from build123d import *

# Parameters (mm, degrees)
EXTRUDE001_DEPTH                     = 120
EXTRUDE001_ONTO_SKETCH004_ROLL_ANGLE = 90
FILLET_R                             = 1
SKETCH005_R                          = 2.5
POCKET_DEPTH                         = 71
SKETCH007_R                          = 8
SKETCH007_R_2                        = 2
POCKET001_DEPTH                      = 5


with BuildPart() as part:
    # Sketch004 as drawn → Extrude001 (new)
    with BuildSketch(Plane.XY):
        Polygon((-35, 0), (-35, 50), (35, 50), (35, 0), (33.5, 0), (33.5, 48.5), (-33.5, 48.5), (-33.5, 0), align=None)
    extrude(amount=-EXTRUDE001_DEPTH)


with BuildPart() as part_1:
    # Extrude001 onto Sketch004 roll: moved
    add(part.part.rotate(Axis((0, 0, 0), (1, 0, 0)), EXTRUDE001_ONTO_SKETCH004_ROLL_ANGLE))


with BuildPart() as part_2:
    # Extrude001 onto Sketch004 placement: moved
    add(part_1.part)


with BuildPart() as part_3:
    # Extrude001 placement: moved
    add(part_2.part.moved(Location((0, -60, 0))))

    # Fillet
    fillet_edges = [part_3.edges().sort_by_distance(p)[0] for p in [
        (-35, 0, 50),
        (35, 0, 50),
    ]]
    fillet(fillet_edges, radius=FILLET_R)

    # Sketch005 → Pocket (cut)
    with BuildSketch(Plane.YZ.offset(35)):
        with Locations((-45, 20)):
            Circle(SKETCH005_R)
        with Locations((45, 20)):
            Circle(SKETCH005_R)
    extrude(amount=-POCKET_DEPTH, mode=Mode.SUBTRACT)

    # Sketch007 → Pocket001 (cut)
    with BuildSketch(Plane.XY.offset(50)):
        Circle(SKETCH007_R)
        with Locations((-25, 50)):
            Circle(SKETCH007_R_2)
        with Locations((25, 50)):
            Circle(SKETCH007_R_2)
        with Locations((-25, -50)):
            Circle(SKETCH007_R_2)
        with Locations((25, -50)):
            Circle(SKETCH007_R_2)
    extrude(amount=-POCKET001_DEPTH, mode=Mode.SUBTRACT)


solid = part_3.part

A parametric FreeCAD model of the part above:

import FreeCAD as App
import Part
import Sketcher
from FreeCAD import Vector


def edges_at(feature, points):
    """Names of the edges that pass closest to the given points."""
    edges = feature.Shape.Edges
    near = lambda p: min(range(len(edges)), key=lambda i: edges[i].distToShape(Part.Vertex(*p))[0])
    return sorted({f"Edge{near(p) + 1}" for p in points})


def add_polygon(sketch, points):
    """Adds a closed chain of lines whose ends are joined by coincident constraints."""
    first, n = sketch.GeometryCount, len(points)
    for a, b in zip(points, points[1:] + points[:1]):
        sketch.addGeometry(Part.LineSegment(App.Vector(*a, 0), App.Vector(*b, 0)), False)
    for i in range(n):
        sketch.addConstraint(Sketcher.Constraint("Coincident", first + i, 2, first + (i + 1) % n, 1))

doc = App.newDocument("Part")
params = doc.addObject("Spreadsheet::Sheet", "Params")
for row, (alias, value) in enumerate([
    ("sketch1_width", "67 mm"),
    ("sketch1_width2", "70 mm"),
    ("sketch1_height", "50 mm"),
    ("sketch1_height2", "48.5 mm"),
    ("pad1_length", "120 mm"),
    ("fillet_radius", "1 mm"),
    ("sketch2_diameter", "5 mm"),
    ("pocket1_length", "71 mm"),
    ("sketch3_diameter", "16 mm"),
    ("sketch3_diameter2", "4 mm"),
    ("pocket2_length", "5 mm"),
], start=1):
    params.set(f"A{row}", alias)
    params.set(f"B{row}", "=" + value)
    params.setAlias(f"B{row}", alias)

body = doc.addObject("PartDesign::Body", "Body")

# Sketch on XY plane
sketch1 = body.newObject("Sketcher::SketchObject", "Sketch")
sketch1.AttachmentSupport = (doc.getObject("XY_Plane"), [""])
sketch1.MapMode = "FlatFace"
add_polygon(sketch1, [(-35, 50), (-35, 0), (-33.5, 0), (-33.5, 48.5), (33.5, 48.5), (33.5, 0), (35, 0), (35, 50)])  # lines 0-7
sketch1.addConstraint(Sketcher.Constraint("Vertical", 0))
sketch1.addConstraint(Sketcher.Constraint("Horizontal", 1))
sketch1.addConstraint(Sketcher.Constraint("Vertical", 2))
sketch1.addConstraint(Sketcher.Constraint("Horizontal", 3))
sketch1.addConstraint(Sketcher.Constraint("Vertical", 4))
sketch1.addConstraint(Sketcher.Constraint("Horizontal", 5))
sketch1.addConstraint(Sketcher.Constraint("Vertical", 6))
sketch1.addConstraint(Sketcher.Constraint("Horizontal", 7))
sketch1.addConstraint(Sketcher.Constraint("Symmetric", 1, 2, 4, 2, -1, 1))
sketch1.addConstraint(Sketcher.Constraint("Symmetric", 0, 2, 5, 2, -2))
sketch1.addConstraint(Sketcher.Constraint("DistanceX", 3, 1, 3, 2, 67.0))
sketch1.addConstraint(Sketcher.Constraint("DistanceX", 7, 2, 7, 1, 70.0))
sketch1.addConstraint(Sketcher.Constraint("DistanceY", 0, 2, 0, 1, 50.0))
sketch1.addConstraint(Sketcher.Constraint("DistanceY", 2, 1, 2, 2, 48.5))
sketch1.setExpression("Constraints[18]", "Params.sketch1_width")
sketch1.setExpression("Constraints[19]", "Params.sketch1_width2")
sketch1.setExpression("Constraints[20]", "Params.sketch1_height")
sketch1.setExpression("Constraints[21]", "Params.sketch1_height2")
pad1 = body.newObject("PartDesign::Pad", "Pad")
pad1.Profile = sketch1
pad1.setExpression("Length", "Params.pad1_length")
pad1.Reversed = True
body2 = doc.addObject("PartDesign::Body", "Body001")
doc.recompute()

body.Placement = App.Placement(Vector(0, 0, 0), App.Rotation(Vector(1, 0, 0), 90))
boolean = body2.newObject("PartDesign::Boolean", "Boolean")
boolean.Type = "Fuse"
boolean.addObjects([body])
body3 = doc.addObject("PartDesign::Body", "Body002")
doc.recompute()

body2.Placement = App.Placement(Vector(0, -60, 0), App.Rotation(Vector(0, 0, 1), 0))
boolean2 = body3.newObject("PartDesign::Boolean", "Boolean001")
boolean2.Type = "Fuse"
boolean2.addObjects([body2])
doc.recompute()

fillet = body3.newObject("PartDesign::Fillet", "Fillet")
fillet.Base = (boolean2, edges_at(boolean2, [(-35, 0, 50), (35, 0, 50)]))
fillet.setExpression("Radius", "Params.fillet_radius")

# Sketch on YZ plane
sketch2 = body3.newObject("Sketcher::SketchObject", "Sketch001")
sketch2.AttachmentSupport = (doc.getObject("YZ_Plane002"), [""])
sketch2.MapMode = "FlatFace"
sketch2.AttachmentOffset = App.Placement(Vector(0, 0, 35), App.Rotation())
sketch2.addGeometry(Part.Circle(Vector(-45, 20, 0), Vector(0, 0, 1), 2.5), False)
sketch2.addGeometry(Part.Circle(Vector(45, 20, 0), Vector(0, 0, 1), 2.5), False)
sketch2.addConstraint(Sketcher.Constraint("Equal", 0, 1))
sketch2.addConstraint(Sketcher.Constraint("Symmetric", 0, 3, 1, 3, -2))
sketch2.addConstraint(Sketcher.Constraint("Diameter", 0, 5.0))
sketch2.addConstraint(Sketcher.Constraint("DistanceX", 0, 3, -1, 1, 45.0))
sketch2.addConstraint(Sketcher.Constraint("DistanceY", -1, 1, 0, 3, 20.0))
sketch2.setExpression("Constraints[2]", "Params.sketch2_diameter")
pocket1 = body3.newObject("PartDesign::Pocket", "Pocket")
pocket1.Profile = sketch2
pocket1.setExpression("Length", "Params.pocket1_length")

# Sketch on XY plane
sketch3 = body3.newObject("Sketcher::SketchObject", "Sketch002")
sketch3.AttachmentSupport = (doc.getObject("XY_Plane002"), [""])
sketch3.MapMode = "FlatFace"
sketch3.AttachmentOffset = App.Placement(Vector(0, 0, 50), App.Rotation())
sketch3.addGeometry(Part.Circle(Vector(0, 0, 0), Vector(0, 0, 1), 8), False)
sketch3.addGeometry(Part.Circle(Vector(-25, 50, 0), Vector(0, 0, 1), 2), False)
sketch3.addGeometry(Part.Circle(Vector(25, 50, 0), Vector(0, 0, 1), 2), False)
sketch3.addGeometry(Part.Circle(Vector(-25, -50, 0), Vector(0, 0, 1), 2), False)
sketch3.addGeometry(Part.Circle(Vector(25, -50, 0), Vector(0, 0, 1), 2), False)
sketch3.addConstraint(Sketcher.Constraint("Coincident", 0, 3, -1, 1))
sketch3.addConstraint(Sketcher.Constraint("Equal", 1, 2))
sketch3.addConstraint(Sketcher.Constraint("Equal", 2, 3))
sketch3.addConstraint(Sketcher.Constraint("Equal", 3, 4))
sketch3.addConstraint(Sketcher.Constraint("Symmetric", 2, 3, 3, 3, -1, 1))
sketch3.addConstraint(Sketcher.Constraint("Symmetric", 1, 3, 4, 3, -1, 1))
sketch3.addConstraint(Sketcher.Constraint("Symmetric", 1, 3, 2, 3, -2))
sketch3.addConstraint(Sketcher.Constraint("Diameter", 0, 16.0))
sketch3.addConstraint(Sketcher.Constraint("Diameter", 1, 4.0))
sketch3.addConstraint(Sketcher.Constraint("DistanceX", 1, 3, -1, 1, 25.0))
sketch3.addConstraint(Sketcher.Constraint("DistanceY", -1, 1, 1, 3, 50.0))
sketch3.setExpression("Constraints[7]", "Params.sketch3_diameter")
sketch3.setExpression("Constraints[8]", "Params.sketch3_diameter2")
pocket2 = body3.newObject("PartDesign::Pocket", "Pocket001")
pocket2.Profile = sketch3
pocket2.setExpression("Length", "Params.pocket2_length")

doc.recompute()
